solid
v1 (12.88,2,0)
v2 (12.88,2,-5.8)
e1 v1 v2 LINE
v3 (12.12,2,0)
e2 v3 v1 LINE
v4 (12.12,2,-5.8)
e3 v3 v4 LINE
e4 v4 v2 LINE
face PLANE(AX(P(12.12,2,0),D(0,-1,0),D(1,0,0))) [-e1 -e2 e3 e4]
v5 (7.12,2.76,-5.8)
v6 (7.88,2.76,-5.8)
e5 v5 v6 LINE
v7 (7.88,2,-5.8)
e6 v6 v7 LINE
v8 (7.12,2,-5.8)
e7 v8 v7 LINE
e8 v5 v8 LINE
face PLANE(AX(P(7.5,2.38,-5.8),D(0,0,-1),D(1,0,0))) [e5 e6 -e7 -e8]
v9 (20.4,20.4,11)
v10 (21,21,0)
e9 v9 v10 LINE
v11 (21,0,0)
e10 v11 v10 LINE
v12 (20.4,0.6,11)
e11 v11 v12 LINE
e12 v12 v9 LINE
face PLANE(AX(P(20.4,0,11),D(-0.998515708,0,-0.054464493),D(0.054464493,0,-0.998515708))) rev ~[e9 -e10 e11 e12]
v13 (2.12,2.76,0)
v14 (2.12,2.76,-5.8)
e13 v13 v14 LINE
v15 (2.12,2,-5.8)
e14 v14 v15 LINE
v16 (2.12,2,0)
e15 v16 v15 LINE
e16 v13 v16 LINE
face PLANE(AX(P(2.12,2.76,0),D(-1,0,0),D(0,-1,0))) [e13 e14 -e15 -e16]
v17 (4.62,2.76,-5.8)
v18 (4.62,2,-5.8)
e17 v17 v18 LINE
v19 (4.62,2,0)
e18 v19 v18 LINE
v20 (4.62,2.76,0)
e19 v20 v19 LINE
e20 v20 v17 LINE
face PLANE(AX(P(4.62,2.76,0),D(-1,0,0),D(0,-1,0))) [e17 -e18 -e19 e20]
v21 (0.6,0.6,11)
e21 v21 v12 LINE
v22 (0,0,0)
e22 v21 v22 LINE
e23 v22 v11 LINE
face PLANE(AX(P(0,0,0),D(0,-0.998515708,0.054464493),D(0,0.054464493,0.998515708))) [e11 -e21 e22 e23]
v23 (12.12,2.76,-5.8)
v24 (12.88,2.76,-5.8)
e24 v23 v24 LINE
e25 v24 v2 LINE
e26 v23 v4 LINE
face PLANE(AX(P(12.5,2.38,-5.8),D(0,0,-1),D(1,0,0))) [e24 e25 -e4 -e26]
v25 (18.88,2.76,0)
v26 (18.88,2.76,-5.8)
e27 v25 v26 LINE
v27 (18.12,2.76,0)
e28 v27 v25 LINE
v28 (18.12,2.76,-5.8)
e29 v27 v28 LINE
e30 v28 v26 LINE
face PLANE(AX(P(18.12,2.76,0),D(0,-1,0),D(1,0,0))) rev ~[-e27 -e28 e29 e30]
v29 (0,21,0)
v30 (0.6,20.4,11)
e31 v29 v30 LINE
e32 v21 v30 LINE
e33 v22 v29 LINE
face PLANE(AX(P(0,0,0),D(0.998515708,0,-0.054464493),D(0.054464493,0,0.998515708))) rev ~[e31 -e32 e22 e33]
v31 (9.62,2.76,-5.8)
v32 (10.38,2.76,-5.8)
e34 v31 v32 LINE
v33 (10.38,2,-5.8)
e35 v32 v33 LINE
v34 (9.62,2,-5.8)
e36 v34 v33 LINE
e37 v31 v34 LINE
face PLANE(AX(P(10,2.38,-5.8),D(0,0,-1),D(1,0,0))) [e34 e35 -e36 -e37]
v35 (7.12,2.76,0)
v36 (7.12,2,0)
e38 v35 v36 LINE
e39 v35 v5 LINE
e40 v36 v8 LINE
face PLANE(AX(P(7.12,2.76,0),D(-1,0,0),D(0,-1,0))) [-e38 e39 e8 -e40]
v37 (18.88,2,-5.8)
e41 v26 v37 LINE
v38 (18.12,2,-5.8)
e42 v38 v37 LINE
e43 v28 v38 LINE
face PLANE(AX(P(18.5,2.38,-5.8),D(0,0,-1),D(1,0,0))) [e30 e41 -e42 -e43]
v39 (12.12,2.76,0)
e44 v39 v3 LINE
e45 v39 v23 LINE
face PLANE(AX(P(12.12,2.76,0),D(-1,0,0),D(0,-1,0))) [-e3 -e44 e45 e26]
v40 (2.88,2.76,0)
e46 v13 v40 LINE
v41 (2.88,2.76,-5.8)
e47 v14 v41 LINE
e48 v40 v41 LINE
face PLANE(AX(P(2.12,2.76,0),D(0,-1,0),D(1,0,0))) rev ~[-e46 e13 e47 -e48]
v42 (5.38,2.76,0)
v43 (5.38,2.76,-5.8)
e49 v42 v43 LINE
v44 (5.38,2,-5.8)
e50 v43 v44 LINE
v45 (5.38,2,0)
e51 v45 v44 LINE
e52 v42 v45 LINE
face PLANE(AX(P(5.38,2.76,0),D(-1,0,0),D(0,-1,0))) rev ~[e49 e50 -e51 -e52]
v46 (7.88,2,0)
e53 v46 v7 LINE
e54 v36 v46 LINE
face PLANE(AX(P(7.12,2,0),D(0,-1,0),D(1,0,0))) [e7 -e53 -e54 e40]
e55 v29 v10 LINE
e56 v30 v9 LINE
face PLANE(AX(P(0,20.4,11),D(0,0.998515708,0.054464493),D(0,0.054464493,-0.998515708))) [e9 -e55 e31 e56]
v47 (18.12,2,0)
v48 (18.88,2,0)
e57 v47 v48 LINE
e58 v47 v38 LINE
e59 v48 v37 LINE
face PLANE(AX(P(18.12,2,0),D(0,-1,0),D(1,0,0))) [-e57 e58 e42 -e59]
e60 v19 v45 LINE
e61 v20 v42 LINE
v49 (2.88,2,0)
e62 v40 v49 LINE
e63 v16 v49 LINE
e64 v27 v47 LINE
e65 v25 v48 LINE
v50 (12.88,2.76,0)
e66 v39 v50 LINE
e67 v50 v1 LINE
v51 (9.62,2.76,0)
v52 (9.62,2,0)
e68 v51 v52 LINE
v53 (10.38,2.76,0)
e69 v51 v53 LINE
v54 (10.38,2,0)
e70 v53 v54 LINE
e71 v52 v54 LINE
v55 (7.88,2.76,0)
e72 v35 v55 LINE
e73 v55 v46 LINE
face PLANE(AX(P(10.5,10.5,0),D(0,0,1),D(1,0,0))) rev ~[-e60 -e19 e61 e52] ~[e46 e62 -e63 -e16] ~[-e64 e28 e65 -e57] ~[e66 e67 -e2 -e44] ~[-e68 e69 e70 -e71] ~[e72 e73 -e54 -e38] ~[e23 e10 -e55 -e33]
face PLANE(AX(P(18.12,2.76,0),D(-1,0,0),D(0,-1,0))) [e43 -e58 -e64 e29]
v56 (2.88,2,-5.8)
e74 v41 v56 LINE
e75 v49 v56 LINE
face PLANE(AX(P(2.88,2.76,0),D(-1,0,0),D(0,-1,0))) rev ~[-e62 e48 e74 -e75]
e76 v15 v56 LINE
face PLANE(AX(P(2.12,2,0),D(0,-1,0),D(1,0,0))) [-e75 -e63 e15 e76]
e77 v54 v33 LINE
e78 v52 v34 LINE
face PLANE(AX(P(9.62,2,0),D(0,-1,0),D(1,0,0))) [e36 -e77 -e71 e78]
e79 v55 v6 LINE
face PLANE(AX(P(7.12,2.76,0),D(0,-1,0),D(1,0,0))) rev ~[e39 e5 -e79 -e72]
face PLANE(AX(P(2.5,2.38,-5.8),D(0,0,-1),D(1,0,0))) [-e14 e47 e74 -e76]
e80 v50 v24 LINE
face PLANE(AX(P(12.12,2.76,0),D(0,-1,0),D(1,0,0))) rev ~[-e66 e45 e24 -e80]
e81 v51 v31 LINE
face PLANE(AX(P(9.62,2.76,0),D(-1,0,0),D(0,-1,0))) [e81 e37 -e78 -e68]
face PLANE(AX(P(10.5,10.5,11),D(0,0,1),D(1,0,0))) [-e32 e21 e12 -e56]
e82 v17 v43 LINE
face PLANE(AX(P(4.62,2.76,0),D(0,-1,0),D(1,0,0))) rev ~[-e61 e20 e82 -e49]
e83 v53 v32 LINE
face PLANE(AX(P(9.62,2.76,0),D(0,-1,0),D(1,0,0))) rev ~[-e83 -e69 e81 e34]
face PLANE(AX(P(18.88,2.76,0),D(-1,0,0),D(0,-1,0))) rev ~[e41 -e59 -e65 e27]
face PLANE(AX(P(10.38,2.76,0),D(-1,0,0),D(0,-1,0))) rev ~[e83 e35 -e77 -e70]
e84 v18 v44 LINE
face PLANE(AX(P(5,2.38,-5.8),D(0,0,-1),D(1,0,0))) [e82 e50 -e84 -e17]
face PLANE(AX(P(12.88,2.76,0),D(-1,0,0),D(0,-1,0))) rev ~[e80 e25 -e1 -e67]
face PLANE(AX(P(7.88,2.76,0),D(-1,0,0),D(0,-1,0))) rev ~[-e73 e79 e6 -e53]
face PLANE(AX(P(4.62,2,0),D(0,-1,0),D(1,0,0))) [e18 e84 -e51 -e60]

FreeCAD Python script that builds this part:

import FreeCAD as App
import Part
import Sketcher
from FreeCAD import Vector

doc = App.newDocument("Part")
body = doc.addObject("PartDesign::Body", "Body")

sketch1 = body.newObject("Sketcher::SketchObject", "Sketch")
sketch1.AttachmentSupport = (doc.getObject("XY_Plane"), [""])
sketch1.MapMode = "FlatFace"
sketch1.addGeometry([
    Part.LineSegment(Vector(0, 21, 0), Vector(0, 0, 0)),
    Part.LineSegment(Vector(0, 0, 0), Vector(21, 0, 0)),
    Part.LineSegment(Vector(21, 0, 0), Vector(21, 21, 0)),
    Part.LineSegment(Vector(21, 21, 0), Vector(0, 21, 0)),
], False)
sketch1.addConstraint([
    Sketcher.Constraint("Coincident", 0, 2, 1, 1),
    Sketcher.Constraint("Coincident", 1, 2, 2, 1),
    Sketcher.Constraint("Coincident", 2, 2, 3, 1),
    Sketcher.Constraint("Coincident", 3, 2, 0, 1),
    Sketcher.Constraint("Vertical", 0),
    Sketcher.Constraint("Horizontal", 1),
    Sketcher.Constraint("Vertical", 2),
    Sketcher.Constraint("Horizontal", 3),
    Sketcher.Constraint("Coincident", 0, 2, -1, 1),
    Sketcher.Constraint("Equal", 3, 0),
    Sketcher.Constraint("DistanceX", 1, 1, 1, 2, 21.0),
])
pad1 = body.newObject("PartDesign::Pad", "Pad")
pad1.Profile = sketch1
pad1.Length = 11

sketch2 = body.newObject("Sketcher::SketchObject", "Sketch001")
sketch2.AttachmentSupport = (doc.getObject("XZ_Plane"), [""])
sketch2.MapMode = "FlatFace"
sketch2.addGeometry([
    Part.LineSegment(Vector(0, 11, 0), Vector(0, 0, 0)),
    Part.LineSegment(Vector(0, 0, 0), Vector(0.6, 11, 0)),
    Part.LineSegment(Vector(0.6, 11, 0), Vector(0, 11, 0)),
    Part.LineSegment(Vector(20.4, 11, 0), Vector(21, 0, 0)),
    Part.LineSegment(Vector(21, 0, 0), Vector(21, 11, 0)),
    Part.LineSegment(Vector(21, 11, 0), Vector(20.4, 11, 0)),
], False)
sketch2.addConstraint([
    Sketcher.Constraint("Coincident", 0, 2, 1, 1),
    Sketcher.Constraint("Coincident", 1, 2, 2, 1),
    Sketcher.Constraint("Coincident", 2, 2, 0, 1),
    Sketcher.Constraint("Coincident", 3, 2, 4, 1),
    Sketcher.Constraint("Coincident", 4, 2, 5, 1),
    Sketcher.Constraint("Coincident", 5, 2, 3, 1),
    Sketcher.Constraint("Vertical", 0),
    Sketcher.Constraint("Horizontal", 2),
    Sketcher.Constraint("Vertical", 4),
    Sketcher.Constraint("Horizontal", 5),
    Sketcher.Constraint("Coincident", 0, 2, -1, 1),
    Sketcher.Constraint("PointOnObject", 3, 2, -1),
    Sketcher.Constraint("Horizontal", 2, 2, 4, 2),
    Sketcher.Constraint("Equal", 2, 5),
    Sketcher.Constraint("DistanceY", 0, 2, 0, 1, 11.0),
    Sketcher.Constraint("DistanceX", 2, 2, 2, 1, 0.6),
    Sketcher.Constraint("DistanceX", -1, 1, 3, 2, 21.0),
])
pocket1 = body.newObject("PartDesign::Pocket", "Pocket")
pocket1.Profile = sketch2
pocket1.Type = "ThroughAll"

sketch3 = body.newObject("Sketcher::SketchObject", "Sketch002")
sketch3.AttachmentSupport = (doc.getObject("YZ_Plane"), [""])
sketch3.MapMode = "FlatFace"
sketch3.addGeometry([
    Part.LineSegment(Vector(20.4, 11, 0), Vector(21, 0, 0)),
    Part.LineSegment(Vector(21, 0, 0), Vector(21, 11, 0)),
    Part.LineSegment(Vector(21, 11, 0), Vector(20.4, 11, 0)),
    Part.LineSegment(Vector(0, 11, 0), Vector(0, 0, 0)),
    Part.LineSegment(Vector(0, 0, 0), Vector(0.6, 11, 0)),
    Part.LineSegment(Vector(0.6, 11, 0), Vector(0, 11, 0)),
], False)
sketch3.addConstraint([
    Sketcher.Constraint("Coincident", 0, 2, 1, 1),
    Sketcher.Constraint("Coincident", 1, 2, 2, 1),
    Sketcher.Constraint("Coincident", 2, 2, 0, 1),
    Sketcher.Constraint("Coincident", 3, 2, 4, 1),
    Sketcher.Constraint("Coincident", 4, 2, 5, 1),
    Sketcher.Constraint("Coincident", 5, 2, 3, 1),
    Sketcher.Constraint("Vertical", 1),
    Sketcher.Constraint("Horizontal", 2),
    Sketcher.Constraint("Vertical", 3),
    Sketcher.Constraint("Horizontal", 5),
    Sketcher.Constraint("Coincident", 3, 2, -1, 1),
    Sketcher.Constraint("PointOnObject", 0, 2, -1),
    Sketcher.Constraint("Horizontal", 2, 2, 4, 2),
    Sketcher.Constraint("Equal", 2, 5),
    Sketcher.Constraint("DistanceY", 1, 1, 1, 2, 11.0),
    Sketcher.Constraint("DistanceX", 2, 2, 2, 1, 0.6),
    Sketcher.Constraint("DistanceX", -1, 1, 0, 2, 21.0),
])
pocket2 = body.newObject("PartDesign::Pocket", "Pocket001")
pocket2.Profile = sketch3
pocket2.Length = 25
pocket2.Reversed = True

sketch4 = body.newObject("Sketcher::SketchObject", "Sketch003")
sketch4.AttachmentSupport = (doc.getObject("XY_Plane"), [""])
sketch4.MapMode = "FlatFace"
sketch4.addGeometry([
    Part.LineSegment(Vector(2.12, 2, 0), Vector(2.12, 2.76, 0)),
    Part.LineSegment(Vector(2.12, 2.76, 0), Vector(2.88, 2.76, 0)),
    Part.LineSegment(Vector(2.88, 2.76, 0), Vector(2.88, 2, 0)),
    Part.LineSegment(Vector(2.88, 2, 0), Vector(2.12, 2, 0)),
    Part.LineSegment(Vector(4.62, 2, 0), Vector(4.62, 2.76, 0)),
    Part.LineSegment(Vector(4.62, 2.76, 0), Vector(5.38, 2.76, 0)),
    Part.LineSegment(Vector(5.38, 2.76, 0), Vector(5.38, 2, 0)),
    Part.LineSegment(Vector(5.38, 2, 0), Vector(4.62, 2, 0)),
    Part.LineSegment(Vector(7.12, 2, 0), Vector(7.12, 2.76, 0)),
    Part.LineSegment(Vector(7.12, 2.76, 0), Vector(7.88, 2.76, 0)),
    Part.LineSegment(Vector(7.88, 2.76, 0), Vector(7.88, 2, 0)),
    Part.LineSegment(Vector(7.88, 2, 0), Vector(7.12, 2, 0)),
    Part.LineSegment(Vector(9.62, 2, 0), Vector(9.62, 2.76, 0)),
    Part.LineSegment(Vector(9.62, 2.76, 0), Vector(10.38, 2.76, 0)),
    Part.LineSegment(Vector(10.38, 2.76, 0), Vector(10.38, 2, 0)),
    Part.LineSegment(Vector(10.38, 2, 0), Vector(9.62, 2, 0)),
    Part.LineSegment(Vector(12.12, 2, 0), Vector(12.12, 2.76, 0)),
    Part.LineSegment(Vector(12.12, 2.76, 0), Vector(12.88, 2.76, 0)),
    Part.LineSegment(Vector(12.88, 2.76, 0), Vector(12.88, 2, 0)),
    Part.LineSegment(Vector(12.88, 2, 0), Vector(12.12, 2, 0)),
    Part.LineSegment(Vector(18.12, 2, 0), Vector(18.12, 2.76, 0)),
    Part.LineSegment(Vector(18.12, 2.76, 0), Vector(18.88, 2.76, 0)),
    Part.LineSegment(Vector(18.88, 2.76, 0), Vector(18.88, 2, 0)),
    Part.LineSegment(Vector(18.88, 2, 0), Vector(18.12, 2, 0)),
], False)
sketch4.addConstraint([
    Sketcher.Constraint("Coincident", 0, 2, 1, 1),
    Sketcher.Constraint("Coincident", 1, 2, 2, 1),
    Sketcher.Constraint("Coincident", 2, 2, 3, 1),
    Sketcher.Constraint("Coincident", 3, 2, 0, 1),
    Sketcher.Constraint("Coincident", 4, 2, 5, 1),
    Sketcher.Constraint("Coincident", 5, 2, 6, 1),
    Sketcher.Constraint("Coincident", 6, 2, 7, 1),
    Sketcher.Constraint("Coincident", 7, 2, 4, 1),
    Sketcher.Constraint("Coincident", 8, 2, 9, 1),
    Sketcher.Constraint("Coincident", 9, 2, 10, 1),
    Sketcher.Constraint("Coincident", 10, 2, 11, 1),
    Sketcher.Constraint("Coincident", 11, 2, 8, 1),
    Sketcher.Constraint("Coincident", 12, 2, 13, 1),
    Sketcher.Constraint("Coincident", 13, 2, 14, 1),
    Sketcher.Constraint("Coincident", 14, 2, 15, 1),
    Sketcher.Constraint("Coincident", 15, 2, 12, 1),
    Sketcher.Constraint("Coincident", 16, 2, 17, 1),
    Sketcher.Constraint("Coincident", 17, 2, 18, 1),
    Sketcher.Constraint("Coincident", 18, 2, 19, 1),
    Sketcher.Constraint("Coincident", 19, 2, 16, 1),
    Sketcher.Constraint("Coincident", 20, 2, 21, 1),
    Sketcher.Constraint("Coincident", 21, 2, 22, 1),
    Sketcher.Constraint("Coincident", 22, 2, 23, 1),
    Sketcher.Constraint("Coincident", 23, 2, 20, 1),
    Sketcher.Constraint("Vertical", 0),
    Sketcher.Constraint("Horizontal", 1),
    Sketcher.Constraint("Vertical", 2),
    Sketcher.Constraint("Horizontal", 3),
    Sketcher.Constraint("Vertical", 4),
    Sketcher.Constraint("Horizontal", 5),
    Sketcher.Constraint("Vertical", 6),
    Sketcher.Constraint("Horizontal", 7),
    Sketcher.Constraint("Vertical", 8),
    Sketcher.Constraint("Horizontal", 9),
    Sketcher.Constraint("Vertical", 10),
    Sketcher.Constraint("Horizontal", 11),
    Sketcher.Constraint("Vertical", 12),
    Sketcher.Constraint("Horizontal", 13),
    Sketcher.Constraint("Vertical", 14),
    Sketcher.Constraint("Horizontal", 15),
    Sketcher.Constraint("Vertical", 16),
    Sketcher.Constraint("Horizontal", 17),
    Sketcher.Constraint("Vertical", 18),
    Sketcher.Constraint("Horizontal", 19),
    Sketcher.Constraint("Vertical", 20),
    Sketcher.Constraint("Horizontal", 21),
    Sketcher.Constraint("Vertical", 22),
    Sketcher.Constraint("Horizontal", 23),
    Sketcher.Constraint("Horizontal", 1, 2, 4, 2),
    Sketcher.Constraint("Horizontal", 3, 2, 6, 2),
    Sketcher.Constraint("Horizontal", 5, 2, 8, 2),
    Sketcher.Constraint("Horizontal", 7, 2, 10, 2),
    Sketcher.Constraint("Horizontal", 9, 2, 12, 2),
    Sketcher.Constraint("Horizontal", 11, 2, 14, 2),
    Sketcher.Constraint("Horizontal", 13, 2, 16, 2),
    Sketcher.Constraint("Horizontal", 15, 2, 18, 2),
    Sketcher.Constraint("Horizontal", 17, 2, 20, 2),
    Sketcher.Constraint("Horizontal", 19, 2, 22, 2),
    Sketcher.Constraint("Equal", 3, 5),
    Sketcher.Constraint("Equal", 7, 9),
    Sketcher.Constraint("Equal", 11, 13),
    Sketcher.Constraint("Equal", 15, 17),
    Sketcher.Constraint("Equal", 19, 21),
    Sketcher.Constraint("Equal", 23, 0),
    Sketcher.Constraint("DistanceY", -1, 1, 2, 2, 2.0),
    Sketcher.Constraint("DistanceX", 16, 2, 20, 2, 6.0),
    Sketcher.Constraint("DistanceX", 1, 1, 1, 2, 0.76),
    Sketcher.Constraint("DistanceX", 0, 2, 4, 2, 2.5),
    Sketcher.Constraint("DistanceX", 4, 2, 8, 2, 2.5),
    Sketcher.Constraint("DistanceX", 8, 2, 12, 2, 2.5),
    Sketcher.Constraint("DistanceX", 12, 2, 16, 2, 2.5),
    Sketcher.Constraint("DistanceX", -1, 1, 0, 2, 2.12),
])
pad2 = body.newObject("PartDesign::Pad", "Pad001")
pad2.Profile = sketch4
pad2.Length = 5.8
pad2.Reversed = True

doc.recompute()
